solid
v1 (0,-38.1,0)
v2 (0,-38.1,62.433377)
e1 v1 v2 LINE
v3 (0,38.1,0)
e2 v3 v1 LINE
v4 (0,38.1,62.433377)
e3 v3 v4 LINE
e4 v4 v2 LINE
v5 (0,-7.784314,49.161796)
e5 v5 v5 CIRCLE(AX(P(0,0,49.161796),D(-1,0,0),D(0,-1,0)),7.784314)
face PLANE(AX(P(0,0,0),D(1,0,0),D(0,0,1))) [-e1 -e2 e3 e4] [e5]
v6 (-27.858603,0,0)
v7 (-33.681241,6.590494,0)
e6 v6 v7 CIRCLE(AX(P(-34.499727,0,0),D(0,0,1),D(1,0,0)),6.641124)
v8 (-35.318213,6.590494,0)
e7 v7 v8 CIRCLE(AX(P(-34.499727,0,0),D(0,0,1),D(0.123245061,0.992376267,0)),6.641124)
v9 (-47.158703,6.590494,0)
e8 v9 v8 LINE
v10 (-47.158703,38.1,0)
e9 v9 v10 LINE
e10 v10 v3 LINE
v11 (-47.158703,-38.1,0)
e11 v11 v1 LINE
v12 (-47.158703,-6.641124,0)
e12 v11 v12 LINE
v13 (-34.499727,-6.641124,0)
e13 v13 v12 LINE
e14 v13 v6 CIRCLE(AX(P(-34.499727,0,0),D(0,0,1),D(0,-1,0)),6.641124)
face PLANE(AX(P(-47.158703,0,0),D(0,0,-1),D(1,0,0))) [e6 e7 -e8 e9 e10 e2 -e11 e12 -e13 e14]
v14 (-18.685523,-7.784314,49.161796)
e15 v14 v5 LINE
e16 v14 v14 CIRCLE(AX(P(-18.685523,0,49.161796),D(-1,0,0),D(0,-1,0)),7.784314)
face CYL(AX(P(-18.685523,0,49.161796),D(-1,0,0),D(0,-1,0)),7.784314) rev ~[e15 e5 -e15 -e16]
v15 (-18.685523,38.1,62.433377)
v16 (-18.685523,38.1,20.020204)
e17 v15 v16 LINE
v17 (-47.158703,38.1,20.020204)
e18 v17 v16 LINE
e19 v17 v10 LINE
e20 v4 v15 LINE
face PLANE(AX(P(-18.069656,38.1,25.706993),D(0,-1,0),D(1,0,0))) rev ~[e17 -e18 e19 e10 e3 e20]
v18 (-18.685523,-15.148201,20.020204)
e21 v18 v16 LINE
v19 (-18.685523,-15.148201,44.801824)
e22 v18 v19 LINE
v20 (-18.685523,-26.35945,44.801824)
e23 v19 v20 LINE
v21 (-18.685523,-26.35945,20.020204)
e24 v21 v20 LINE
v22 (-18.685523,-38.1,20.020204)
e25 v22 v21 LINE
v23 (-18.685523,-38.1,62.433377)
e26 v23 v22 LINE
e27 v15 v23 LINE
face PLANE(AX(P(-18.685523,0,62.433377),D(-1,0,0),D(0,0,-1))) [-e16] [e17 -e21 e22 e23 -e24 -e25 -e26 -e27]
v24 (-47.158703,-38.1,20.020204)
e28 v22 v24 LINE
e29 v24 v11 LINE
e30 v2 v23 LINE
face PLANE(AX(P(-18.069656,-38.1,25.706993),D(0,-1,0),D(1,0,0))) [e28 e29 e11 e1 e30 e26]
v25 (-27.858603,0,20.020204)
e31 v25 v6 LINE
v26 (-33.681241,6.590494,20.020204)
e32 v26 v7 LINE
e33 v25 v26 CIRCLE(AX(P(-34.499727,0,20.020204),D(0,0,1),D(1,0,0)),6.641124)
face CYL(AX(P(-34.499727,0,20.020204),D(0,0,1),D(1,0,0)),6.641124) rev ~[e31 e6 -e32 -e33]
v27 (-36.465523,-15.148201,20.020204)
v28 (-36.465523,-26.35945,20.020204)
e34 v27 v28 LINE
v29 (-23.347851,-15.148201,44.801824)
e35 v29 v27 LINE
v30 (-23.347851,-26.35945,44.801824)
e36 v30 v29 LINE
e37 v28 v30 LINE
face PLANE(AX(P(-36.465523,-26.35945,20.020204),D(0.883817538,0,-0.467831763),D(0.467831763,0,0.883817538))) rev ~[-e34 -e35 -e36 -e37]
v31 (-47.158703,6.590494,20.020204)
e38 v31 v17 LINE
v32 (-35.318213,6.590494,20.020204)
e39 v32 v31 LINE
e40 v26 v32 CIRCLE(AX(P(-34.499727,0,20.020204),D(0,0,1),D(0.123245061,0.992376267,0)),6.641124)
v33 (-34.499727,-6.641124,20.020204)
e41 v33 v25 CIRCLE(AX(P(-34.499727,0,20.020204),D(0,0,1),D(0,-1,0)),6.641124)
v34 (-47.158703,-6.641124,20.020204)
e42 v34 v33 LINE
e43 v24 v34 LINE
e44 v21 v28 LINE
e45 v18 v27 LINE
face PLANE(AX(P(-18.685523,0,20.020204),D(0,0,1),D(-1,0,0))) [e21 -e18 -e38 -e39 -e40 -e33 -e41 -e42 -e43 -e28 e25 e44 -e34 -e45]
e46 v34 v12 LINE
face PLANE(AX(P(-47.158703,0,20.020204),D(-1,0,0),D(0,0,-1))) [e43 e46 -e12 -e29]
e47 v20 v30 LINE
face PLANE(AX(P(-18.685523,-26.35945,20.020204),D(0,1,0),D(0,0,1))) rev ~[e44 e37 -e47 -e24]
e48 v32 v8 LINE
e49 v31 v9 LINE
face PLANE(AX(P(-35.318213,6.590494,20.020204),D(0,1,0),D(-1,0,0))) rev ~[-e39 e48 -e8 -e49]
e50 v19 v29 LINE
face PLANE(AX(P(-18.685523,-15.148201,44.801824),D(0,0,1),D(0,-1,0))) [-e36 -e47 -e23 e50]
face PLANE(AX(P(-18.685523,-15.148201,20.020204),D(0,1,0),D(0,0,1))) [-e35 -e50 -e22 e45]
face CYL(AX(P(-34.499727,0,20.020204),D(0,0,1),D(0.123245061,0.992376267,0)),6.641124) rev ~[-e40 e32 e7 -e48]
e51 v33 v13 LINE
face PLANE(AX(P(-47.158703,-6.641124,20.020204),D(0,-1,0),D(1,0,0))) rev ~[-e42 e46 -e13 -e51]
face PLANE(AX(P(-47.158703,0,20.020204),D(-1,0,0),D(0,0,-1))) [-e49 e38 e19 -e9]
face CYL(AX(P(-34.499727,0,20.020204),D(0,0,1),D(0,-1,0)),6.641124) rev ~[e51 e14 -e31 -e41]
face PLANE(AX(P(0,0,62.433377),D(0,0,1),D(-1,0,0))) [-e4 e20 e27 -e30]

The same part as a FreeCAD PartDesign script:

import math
import FreeCAD as App
import Part
import Sketcher
Q = App.Units.Quantity

doc = App.newDocument("Part")
body = doc.addObject("PartDesign::Body", "Body")

sketch1 = doc.addObject("Sketcher::SketchObject", "Sketch")
body.addObject(sketch1)
sketch1.AttachmentSupport = (doc.XZ_Plane, [""])
sketch1.MapMode = "FlatFace"
sketch1.addGeometry(Part.LineSegment(App.Vector(-47, 0, 0), App.Vector(0, 0, 0)), False)
sketch1.addGeometry(Part.LineSegment(App.Vector(0, 0, 0), App.Vector(0, 62, 0)), False)
sketch1.addGeometry(Part.LineSegment(App.Vector(0, 62, 0), App.Vector(-19, 62, 0)), False)
sketch1.addGeometry(Part.LineSegment(App.Vector(-19, 62, 0), App.Vector(-19, 20, 0)), False)
sketch1.addGeometry(Part.LineSegment(App.Vector(-19, 20, 0), App.Vector(-47, 20, 0)), False)
sketch1.addGeometry(Part.LineSegment(App.Vector(-47, 20, 0), App.Vector(-47, 0, 0)), False)
sketch1.addConstraint(Sketcher.Constraint("Coincident", 0, 2, 1, 1))
sketch1.addConstraint(Sketcher.Constraint("Coincident", 1, 2, 2, 1))
sketch1.addConstraint(Sketcher.Constraint("Coincident", 2, 2, 3, 1))
sketch1.addConstraint(Sketcher.Constraint("Coincident", 3, 2, 4, 1))
sketch1.addConstraint(Sketcher.Constraint("Coincident", 4, 2, 5, 1))
sketch1.addConstraint(Sketcher.Constraint("Coincident", 5, 2, 0, 1))
sketch1.addConstraint(Sketcher.Constraint("Horizontal", 0))
sketch1.addConstraint(Sketcher.Constraint("Vertical", 1))
sketch1.addConstraint(Sketcher.Constraint("Horizontal", 2))
sketch1.addConstraint(Sketcher.Constraint("Vertical", 3))
sketch1.addConstraint(Sketcher.Constraint("Horizontal", 4))
sketch1.addConstraint(Sketcher.Constraint("Vertical", 5))
sketch1.addConstraint(Sketcher.Constraint("Coincident", 0, 2, -1, 1))
sketch1.addConstraint(Sketcher.Constraint("DistanceX", 4, 2, 4, 1, Q("28.47318 mm")))
sketch1.addConstraint(Sketcher.Constraint("DistanceX", 0, 1, 0, 2, Q("47.158703 mm")))
sketch1.addConstraint(Sketcher.Constraint("DistanceY", 1, 1, 1, 2, Q("62.433377 mm")))
sketch1.addConstraint(Sketcher.Constraint("DistanceY", 3, 2, 3, 1, Q("42.413173 mm")))
pad1 = doc.addObject("PartDesign::Pad", "Pad")
body.addObject(pad1)
pad1.Profile = sketch1
pad1.Length = Q("3 in")
pad1.Midplane = True

sketch2 = doc.addObject("Sketcher::SketchObject", "Sketch001")
body.addObject(sketch2)
sketch2.AttachmentSupport = (doc.XY_Plane, [""])
sketch2.MapMode = "FlatFace"
sketch2.AttachmentOffset = App.Placement(App.Vector(0, 0, 20.020204), App.Rotation())
sketch2.addGeometry(Part.ArcOfCircle(Part.Circle(App.Vector(-34.5, 0, 0), App.Vector(0, 0, 1), 6.6), math.radians(-90), math.radians(0)), False)
sketch2.addGeometry(Part.ArcOfCircle(Part.Circle(App.Vector(-34.5, 0, 0), App.Vector(0, 0, 1), 6.6), math.radians(0), math.radians(83)), False)
sketch2.addGeometry(Part.ArcOfCircle(Part.Circle(App.Vector(-34.5, 0, 0), App.Vector(0, 0, 1), 6.6), math.radians(82.92), math.radians(97.08)), False)
sketch2.addGeometry(Part.LineSegment(App.Vector(-35.3, 6.6, 0), App.Vector(-47.2, 6.6, 0)), False)
sketch2.addGeometry(Part.LineSegment(App.Vector(-47.2, 6.6, 0), App.Vector(-47.2, -6.6, 0)), False)
sketch2.addGeometry(Part.LineSegment(App.Vector(-47.2, -6.6, 0), App.Vector(-34.5, -6.6, 0)), False)
sketch2.addConstraint(Sketcher.Constraint("Tangent", 0, 2, 1, 1))
sketch2.addConstraint(Sketcher.Constraint("Tangent", 1, 2, 2, 1))
sketch2.addConstraint(Sketcher.Constraint("Coincident", 2, 2, 3, 1))
sketch2.addConstraint(Sketcher.Constraint("Coincident", 3, 2, 4, 1))
sketch2.addConstraint(Sketcher.Constraint("Coincident", 4, 2, 5, 1))
sketch2.addConstraint(Sketcher.Constraint("Tangent", 5, 2, 0, 1))
sketch2.addConstraint(Sketcher.Constraint("Horizontal", 3))
sketch2.addConstraint(Sketcher.Constraint("Vertical", 4))
sketch2.addConstraint(Sketcher.Constraint("Horizontal", 5))
sketch2.addConstraint(Sketcher.Constraint("Coincident", 2, 3, 0, 3))
sketch2.addConstraint(Sketcher.Constraint("PointOnObject", 0, 3, -1))
sketch2.addConstraint(Sketcher.Constraint("PointOnObject", 0, 2, -1))
sketch2.addConstraint(Sketcher.Constraint("Horizontal", 1, 2, 2, 2))
sketch2.addConstraint(Sketcher.Constraint("Radius", 0, Q("6.641124 mm")))
sketch2.addConstraint(Sketcher.Constraint("DistanceX", 3, 2, 3, 1, Q("11.84049 mm")))
sketch2.addConstraint(Sketcher.Constraint("DistanceY", 4, 2, 4, 1, Q("13.231618 mm")))
sketch2.addConstraint(Sketcher.Constraint("DistanceX", 1, 2, -1, 1, Q("33.681241 mm")))
pocket1 = doc.addObject("PartDesign::Pocket", "Pocket")
body.addObject(pocket1)
pocket1.Profile = sketch2
pocket1.Type = "ThroughAll"

sketch3 = doc.addObject("Sketcher::SketchObject", "Sketch002")
body.addObject(sketch3)
sketch3.AttachmentSupport = (doc.YZ_Plane, [""])
sketch3.MapMode = "FlatFace"
sketch3.AttachmentOffset = App.Placement(App.Vector(0, 0, -18.685523), App.Rotation())
sketch3.addGeometry(Part.Circle(App.Vector(0, 49, 0), App.Vector(0, 0, 1), 8), False)
sketch3.addConstraint(Sketcher.Constraint("PointOnObject", 0, 3, -2))
sketch3.addConstraint(Sketcher.Constraint("Diameter", 0, Q("15.568629 mm")))
sketch3.addConstraint(Sketcher.Constraint("DistanceY", -1, 1, 0, 3, Q("49.161796 mm")))
pocket2 = doc.addObject("PartDesign::Pocket", "Pocket001")
body.addObject(pocket2)
pocket2.Profile = sketch3
pocket2.Type = "ThroughAll"
pocket2.Reversed = True

sketch4 = doc.addObject("Sketcher::SketchObject", "Sketch003")
body.addObject(sketch4)
sketch4.AttachmentSupport = (doc.YZ_Plane, [""])
sketch4.MapMode = "FlatFace"
sketch4.AttachmentOffset = App.Placement(App.Vector(0, 0, -18.685523), App.Rotation())
sketch4.addGeometry(Part.LineSegment(App.Vector(-15, 45, 0), App.Vector(-15, 20, 0)), False)
sketch4.addGeometry(Part.LineSegment(App.Vector(-15, 20, 0), App.Vector(-26, 20, 0)), False)
sketch4.addGeometry(Part.LineSegment(App.Vector(-26, 20, 0), App.Vector(-26, 45, 0)), False)
sketch4.addGeometry(Part.LineSegment(App.Vector(-26, 45, 0), App.Vector(-15, 45, 0)), False)
sketch4.addConstraint(Sketcher.Constraint("Coincident", 0, 2, 1, 1))
sketch4.addConstraint(Sketcher.Constraint("Coincident", 1, 2, 2, 1))
sketch4.addConstraint(Sketcher.Constraint("Coincident", 2, 2, 3, 1))
sketch4.addConstraint(Sketcher.Constraint("Coincident", 3, 2, 0, 1))
sketch4.addConstraint(Sketcher.Constraint("Vertical", 0))
sketch4.addConstraint(Sketcher.Constraint("Horizontal", 1))
sketch4.addConstraint(Sketcher.Constraint("Vertical", 2))
sketch4.addConstraint(Sketcher.Constraint("Horizontal", 3))
sketch4.addConstraint(Sketcher.Constraint("DistanceX", 1, 2, 1, 1, Q("11.211249 mm")))
sketch4.addConstraint(Sketcher.Constraint("DistanceY", 0, 2, 0, 1, Q("24.78162 mm")))
sketch4.addConstraint(Sketcher.Constraint("DistanceX", 0, 2, -1, 1, Q("15.148201 mm")))
sketch4.addConstraint(Sketcher.Constraint("DistanceY", -1, 1, 0, 2, Q("20.020204 mm")))
pad2 = doc.addObject("PartDesign::Pad", "Pad001")
body.addObject(pad2)
pad2.Profile = sketch4
pad2.Length = Q("0.7 in")
pad2.Reversed = True

sketch5 = doc.addObject("Sketcher::SketchObject", "Sketch004")
body.addObject(sketch5)
sketch5.AttachmentSupport = (doc.XZ_Plane, [""])
sketch5.MapMode = "FlatFace"
sketch5.AttachmentOffset = App.Placement(App.Vector(0, 0, 26.35945), App.Rotation())
sketch5.addGeometry(Part.LineSegment(App.Vector(-36, 20, 0), App.Vector(-23, 45, 0)), False)
sketch5.addGeometry(Part.LineSegment(App.Vector(-23, 45, 0), App.Vector(-36, 45, 0)), False)
sketch5.addGeometry(Part.LineSegment(App.Vector(-36, 45, 0), App.Vector(-36, 20, 0)), False)
sketch5.addConstraint(Sketcher.Constraint("Coincident", 0, 2, 1, 1))
sketch5.addConstraint(Sketcher.Constraint("Coincident", 1, 2, 2, 1))
sketch5.addConstraint(Sketcher.Constraint("Coincident", 2, 2, 0, 1))
sketch5.addConstraint(Sketcher.Constraint("Horizontal", 1))
sketch5.addConstraint(Sketcher.Constraint("Vertical", 2))
sketch5.addConstraint(Sketcher.Constraint("DistanceY", 2, 2, 2, 1, Q("24.78162 mm")))
sketch5.addConstraint(Sketcher.Constraint("DistanceX", 1, 2, 1, 1, Q("13.117673 mm")))
sketch5.addConstraint(Sketcher.Constraint("DistanceX", 0, 2, -1, 1, Q("23.347851 mm")))
sketch5.addConstraint(Sketcher.Constraint("DistanceY", -1, 1, 0, 2, Q("44.801824 mm")))
pocket3 = doc.addObject("PartDesign::Pocket", "Pocket002")
body.addObject(pocket3)
pocket3.Profile = sketch5
pocket3.Type = "ThroughAll"

doc.recompute()
